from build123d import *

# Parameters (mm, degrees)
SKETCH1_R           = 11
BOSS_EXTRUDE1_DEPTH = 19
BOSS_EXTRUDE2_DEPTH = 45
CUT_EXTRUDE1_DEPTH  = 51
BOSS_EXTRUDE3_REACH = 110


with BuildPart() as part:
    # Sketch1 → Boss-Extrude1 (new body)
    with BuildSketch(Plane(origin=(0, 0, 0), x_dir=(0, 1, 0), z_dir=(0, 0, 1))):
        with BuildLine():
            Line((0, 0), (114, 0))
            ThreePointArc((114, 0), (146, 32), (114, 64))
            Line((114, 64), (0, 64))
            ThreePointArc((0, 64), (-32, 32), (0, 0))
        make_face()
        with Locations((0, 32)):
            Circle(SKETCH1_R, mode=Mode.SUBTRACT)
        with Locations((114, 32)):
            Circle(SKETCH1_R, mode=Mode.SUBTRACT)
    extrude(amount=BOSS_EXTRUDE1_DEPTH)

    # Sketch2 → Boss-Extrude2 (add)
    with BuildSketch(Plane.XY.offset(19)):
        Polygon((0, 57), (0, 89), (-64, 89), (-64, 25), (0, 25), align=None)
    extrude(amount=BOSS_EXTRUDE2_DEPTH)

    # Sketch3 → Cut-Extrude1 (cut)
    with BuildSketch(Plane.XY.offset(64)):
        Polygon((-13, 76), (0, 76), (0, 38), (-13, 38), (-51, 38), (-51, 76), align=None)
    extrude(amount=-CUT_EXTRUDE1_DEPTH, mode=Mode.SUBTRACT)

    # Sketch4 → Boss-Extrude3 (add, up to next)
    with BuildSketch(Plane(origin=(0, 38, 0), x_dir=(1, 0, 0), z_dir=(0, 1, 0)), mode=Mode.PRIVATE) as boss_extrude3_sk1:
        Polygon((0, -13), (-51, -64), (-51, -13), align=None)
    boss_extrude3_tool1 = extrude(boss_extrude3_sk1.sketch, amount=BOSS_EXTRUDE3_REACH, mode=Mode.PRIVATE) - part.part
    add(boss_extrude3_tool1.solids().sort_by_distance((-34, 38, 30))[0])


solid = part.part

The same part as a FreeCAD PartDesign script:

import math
import FreeCAD as App
import Part
import Sketcher

V = App.Vector


def add_polygon(sketch, points):
    """Adds a closed chain of lines whose ends are joined by coincident constraints."""
    first, n = sketch.GeometryCount, len(points)
    for a, b in zip(points, points[1:] + points[:1]):
        sketch.addGeometry(Part.LineSegment(App.Vector(*a, 0), App.Vector(*b, 0)), False)
    for i in range(n):
        sketch.addConstraint(Sketcher.Constraint("Coincident", first + i, 2, first + (i + 1) % n, 1))

doc = App.newDocument("Part")
body = doc.addObject("PartDesign::Body", "Body")

# Sketch on XY plane
sketch1 = body.newObject("Sketcher::SketchObject", "Sketch")
sketch1.AttachmentSupport = (doc.getObject("XY_Plane"), [""])
sketch1.MapMode = "FlatFace"
sketch1.addGeometry([
    Part.LineSegment(V(0, 0, 0), V(0, 114, 0)),  # 0
    Part.ArcOfCircle(Part.Circle(V(-32, 114, 0), V(0, 0, 1), 32), math.radians(0), math.radians(180)),  # 1
    Part.LineSegment(V(-64, 114, 0), V(-64, 0, 0)),  # 2
    Part.ArcOfCircle(Part.Circle(V(-32, 0, 0), V(0, 0, 1), 32), math.radians(180), math.radians(360)),  # 3
    Part.Circle(V(-32, 0, 0), V(0, 0, 1), 11),  # 4
    Part.Circle(V(-32, 114, 0), V(0, 0, 1), 11),  # 5
], False)
sketch1.addConstraint([
    Sketcher.Constraint("Tangent", 0, 2, 1, 1),
    Sketcher.Constraint("Tangent", 1, 2, 2, 1),
    Sketcher.Constraint("Tangent", 2, 2, 3, 1),
    Sketcher.Constraint("Tangent", 3, 2, 0, 1),
    Sketcher.Constraint("Vertical", 0),
    Sketcher.Constraint("Vertical", 2),
    Sketcher.Constraint("Coincident", 3, 2, -1, 1),
    Sketcher.Constraint("Coincident", 4, 3, 3, 3),
    Sketcher.Constraint("Coincident", 5, 3, 1, 3),
    Sketcher.Constraint("Equal", 4, 5),
    Sketcher.Constraint("Diameter", 4, 22.0),
    Sketcher.Constraint("Radius", 1, 32.0),
    Sketcher.Constraint("DistanceY", 0, 1, 0, 2, 114.0),
])
pad1 = body.newObject("PartDesign::Pad", "Pad")
pad1.Profile = sketch1
pad1.Length = 19

# Sketch on XY plane
sketch2 = body.newObject("Sketcher::SketchObject", "Sketch001")
sketch2.AttachmentSupport = (doc.getObject("XY_Plane"), [""])
sketch2.MapMode = "FlatFace"
sketch2.AttachmentOffset = App.Placement(V(0, 0, 19), App.Rotation())
add_polygon(sketch2, [(0, 89), (-64, 89), (-64, 25), (0, 25)])  # lines 0-3
sketch2.addConstraint([
    Sketcher.Constraint("Horizontal", 0),
    Sketcher.Constraint("Vertical", 1),
    Sketcher.Constraint("Horizontal", 2),
    Sketcher.Constraint("Vertical", 3),
    Sketcher.Constraint("PointOnObject", 2, 2, -2),
    Sketcher.Constraint("Equal", 2, 1),
    Sketcher.Constraint("DistanceX", 0, 2, 0, 1, 64.0),
    Sketcher.Constraint("DistanceY", -1, 1, 0, 2, 89.0),
])
pad2 = body.newObject("PartDesign::Pad", "Pad001")
pad2.Profile = sketch2
pad2.Length = 45

# Sketch on XY plane
sketch3 = body.newObject("Sketcher::SketchObject", "Sketch002")
sketch3.AttachmentSupport = (doc.getObject("XY_Plane"), [""])
sketch3.MapMode = "FlatFace"
sketch3.AttachmentOffset = App.Placement(V(0, 0, 64), App.Rotation())
add_polygon(sketch3, [(0, 76), (-51, 76), (-51, 38), (0, 38)])  # lines 0-3
sketch3.addConstraint([
    Sketcher.Constraint("Horizontal", 0),
    Sketcher.Constraint("Vertical", 1),
    Sketcher.Constraint("Horizontal", 2),
    Sketcher.Constraint("Vertical", 3),
    Sketcher.Constraint("PointOnObject", 2, 2, -2),
    Sketcher.Constraint("DistanceX", 0, 2, 0, 1, 51.0),
    Sketcher.Constraint("DistanceY", 1, 2, 1, 1, 38.0),
    Sketcher.Constraint("DistanceY", -1, 1, 0, 2, 76.0),
])
pocket1 = body.newObject("PartDesign::Pocket", "Pocket")
pocket1.Profile = sketch3
pocket1.Length = 51

# Sketch on XZ plane
sketch4 = body.newObject("Sketcher::SketchObject", "Sketch003")
sketch4.AttachmentSupport = (doc.getObject("XZ_Plane"), [""])
sketch4.MapMode = "FlatFace"
sketch4.AttachmentOffset = App.Placement(V(0, 0, -38), App.Rotation())
add_polygon(sketch4, [(-51, 64), (0, 13), (-51, 13)])  # lines 0-2
sketch4.addConstraint([
    Sketcher.Constraint("Horizontal", 1),
    Sketcher.Constraint("Vertical", 2),
    Sketcher.Constraint("PointOnObject", 0, 2, -2),
    Sketcher.Constraint("Equal", 1, 2),
    Sketcher.Constraint("DistanceX", 1, 2, 1, 1, 51.0),
    Sketcher.Constraint("DistanceY", -1, 1, 0, 2, 13.0),
])
pad3 = body.newObject("PartDesign::Pad", "Pad002")
pad3.Profile = sketch4
pad3.Type = "UpToFirst"
pad3.Reversed = True

doc.recompute()
